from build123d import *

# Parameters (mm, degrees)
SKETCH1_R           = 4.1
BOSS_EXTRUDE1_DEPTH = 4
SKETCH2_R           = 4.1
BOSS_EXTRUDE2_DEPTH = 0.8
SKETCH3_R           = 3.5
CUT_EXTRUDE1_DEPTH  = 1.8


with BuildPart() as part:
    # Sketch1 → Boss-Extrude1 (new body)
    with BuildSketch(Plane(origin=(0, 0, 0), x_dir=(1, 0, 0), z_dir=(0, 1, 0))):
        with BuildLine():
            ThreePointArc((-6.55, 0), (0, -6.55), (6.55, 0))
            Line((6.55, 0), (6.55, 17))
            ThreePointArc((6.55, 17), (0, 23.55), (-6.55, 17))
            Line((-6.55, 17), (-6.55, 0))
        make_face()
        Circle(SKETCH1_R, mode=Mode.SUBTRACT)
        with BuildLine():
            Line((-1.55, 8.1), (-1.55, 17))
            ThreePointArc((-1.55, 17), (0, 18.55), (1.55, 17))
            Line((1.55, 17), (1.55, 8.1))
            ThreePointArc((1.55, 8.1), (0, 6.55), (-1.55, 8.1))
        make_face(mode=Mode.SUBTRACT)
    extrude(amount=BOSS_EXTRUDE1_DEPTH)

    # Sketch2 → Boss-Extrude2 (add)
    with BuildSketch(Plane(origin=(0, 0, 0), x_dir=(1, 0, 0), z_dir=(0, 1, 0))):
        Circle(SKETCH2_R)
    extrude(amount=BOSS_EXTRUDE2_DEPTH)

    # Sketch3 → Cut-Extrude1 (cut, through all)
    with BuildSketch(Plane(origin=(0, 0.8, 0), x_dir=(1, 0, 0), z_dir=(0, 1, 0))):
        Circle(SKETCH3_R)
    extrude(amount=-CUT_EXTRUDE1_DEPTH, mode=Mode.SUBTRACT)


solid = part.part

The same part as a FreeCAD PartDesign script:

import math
import FreeCAD as App
import Part
import Sketcher
from FreeCAD import Vector
Q = App.Units.Quantity

doc = App.newDocument("Part")
body = doc.addObject("PartDesign::Body", "Body")

sketch1 = doc.addObject("Sketcher::SketchObject", "Sketch")
body.addObject(sketch1)
sketch1.AttachmentSupport = (doc.XZ_Plane, [""])
sketch1.MapMode = "FlatFace"
sketch1.addGeometry([
    Part.ArcOfCircle(Part.Circle(Vector(0, 0, 0), Vector(0, 0, 1), 6.55), math.radians(0), math.radians(180)),
    Part.LineSegment(Vector(6.55, 0, 0), Vector(6.55, -17, 0)),
    Part.ArcOfCircle(Part.Circle(Vector(0, -17, 0), Vector(0, 0, 1), 6.55), math.radians(180), math.radians(360)),
    Part.LineSegment(Vector(-6.55, -17, 0), Vector(-6.55, 0, 0)),
    Part.Circle(Vector(0, 0, 0), Vector(0, 0, 1), 4.1),
    Part.ArcOfCircle(Part.Circle(Vector(0, -8.1, 0), Vector(0, 0, 1), 1.55), math.radians(0), math.radians(180)),
    Part.LineSegment(Vector(-1.55, -8.1, 0), Vector(-1.55, -17, 0)),
    Part.ArcOfCircle(Part.Circle(Vector(0, -17, 0), Vector(0, 0, 1), 1.55), math.radians(180), math.radians(360)),
    Part.LineSegment(Vector(1.55, -17, 0), Vector(1.55, -8.1, 0)),
], False)
sketch1.addConstraint([
    Sketcher.Constraint("Tangent", 0, 1, 1, 1),
    Sketcher.Constraint("Tangent", 1, 2, 2, 2),
    Sketcher.Constraint("Tangent", 2, 1, 3, 1),
    Sketcher.Constraint("Tangent", 3, 2, 0, 2),
    Sketcher.Constraint("Tangent", 5, 2, 6, 1),
    Sketcher.Constraint("Tangent", 6, 2, 7, 1),
    Sketcher.Constraint("Tangent", 7, 2, 8, 1),
    Sketcher.Constraint("Tangent", 8, 2, 5, 1),
    Sketcher.Constraint("Vertical", 1),
    Sketcher.Constraint("Vertical", 3),
    Sketcher.Constraint("Vertical", 6),
    Sketcher.Constraint("Vertical", 8),
    Sketcher.Constraint("Coincident", 0, 3, -1, 1),
    Sketcher.Constraint("Coincident", 4, 3, -1, 1),
    Sketcher.Constraint("Coincident", 7, 3, 2, 3),
    Sketcher.Constraint("Diameter", 4, Q("8.2 mm")),
    Sketcher.Constraint("DistanceY", 1, 2, 1, 1, Q("17 mm")),
    Sketcher.Constraint("Radius", 0, Q("6.55 mm")),
    Sketcher.Constraint("Radius", 5, Q("1.55 mm")),
    Sketcher.Constraint("DistanceY", 6, 2, 6, 1, Q("8.9 mm")),
])
pad1 = doc.addObject("PartDesign::Pad", "Pad")
body.addObject(pad1)
pad1.Profile = sketch1
pad1.Length = 4
pad1.Reversed = True

sketch2 = doc.addObject("Sketcher::SketchObject", "Sketch001")
body.addObject(sketch2)
sketch2.AttachmentSupport = (doc.XZ_Plane, [""])
sketch2.MapMode = "FlatFace"
sketch2.addGeometry(Part.Circle(Vector(0, 0, 0), Vector(0, 0, 1), 4.1), False)
sketch2.addConstraint([
    Sketcher.Constraint("Coincident", 0, 3, -1, 1),
    Sketcher.Constraint("Diameter", 0, Q("8.2 mm")),
])
pad2 = doc.addObject("PartDesign::Pad", "Pad001")
body.addObject(pad2)
pad2.Profile = sketch2
pad2.Length = 0.8
pad2.Reversed = True

sketch3 = doc.addObject("Sketcher::SketchObject", "Sketch002")
body.addObject(sketch3)
sketch3.AttachmentSupport = (doc.XZ_Plane, [""])
sketch3.MapMode = "FlatFace"
sketch3.AttachmentOffset = App.Placement(Vector(0, 0, -0.8), App.Rotation())
sketch3.addGeometry(Part.Circle(Vector(0, 0, 0), Vector(0, 0, 1), 3.5), False)
sketch3.addConstraint([
    Sketcher.Constraint("Coincident", 0, 3, -1, 1),
    Sketcher.Constraint("Diameter", 0, Q("7 mm")),
])
pocket1 = doc.addObject("PartDesign::Pocket", "Pocket")
body.addObject(pocket1)
pocket1.Profile = sketch3
pocket1.Type = "ThroughAll"
pocket1.Reversed = True

doc.recompute()
